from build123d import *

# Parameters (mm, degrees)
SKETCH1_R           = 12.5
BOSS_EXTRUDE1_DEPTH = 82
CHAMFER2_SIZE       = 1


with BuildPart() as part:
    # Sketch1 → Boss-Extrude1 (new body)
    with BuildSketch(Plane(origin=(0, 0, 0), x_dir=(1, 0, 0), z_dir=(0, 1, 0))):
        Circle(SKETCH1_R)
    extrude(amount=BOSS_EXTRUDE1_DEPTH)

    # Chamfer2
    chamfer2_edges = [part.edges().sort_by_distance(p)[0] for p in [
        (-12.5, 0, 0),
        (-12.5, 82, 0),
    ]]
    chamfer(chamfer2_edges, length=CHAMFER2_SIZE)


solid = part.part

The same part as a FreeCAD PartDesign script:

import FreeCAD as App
import Part
import Sketcher
from FreeCAD import Vector


def edges_at(feature, points):
    """Names of the edges that pass closest to the given points."""
    edges = feature.Shape.Edges
    near = lambda p: min(range(len(edges)), key=lambda i: edges[i].distToShape(Part.Vertex(*p))[0])
    return sorted({f"Edge{near(p) + 1}" for p in points})

doc = App.newDocument("Part")
body = doc.addObject("PartDesign::Body", "Body")

sketch1 = doc.addObject("Sketcher::SketchObject", "Sketch")
body.addObject(sketch1)
sketch1.AttachmentSupport = (doc.XZ_Plane, [""])
sketch1.MapMode = "FlatFace"
sketch1.addGeometry(Part.Circle(Vector(0, 0, 0), Vector(0, 0, 1), 12), False)
sketch1.addConstraint([
    Sketcher.Constraint("Coincident", 0, 3, -1, 1),
    Sketcher.Constraint("Diameter", 0, 25.0),
])
pad1 = doc.addObject("PartDesign::Pad", "Pad")
body.addObject(pad1)
pad1.Profile = sketch1
pad1.Length = 82
pad1.Reversed = True
doc.recompute()

chamfer = doc.addObject("PartDesign::Chamfer", "Chamfer")
body.addObject(chamfer)
chamfer.Base = (pad1, edges_at(pad1, [(-12.5, 0, 0), (-12.5, 82, 0)]))
chamfer.Size = 1

doc.recompute()
